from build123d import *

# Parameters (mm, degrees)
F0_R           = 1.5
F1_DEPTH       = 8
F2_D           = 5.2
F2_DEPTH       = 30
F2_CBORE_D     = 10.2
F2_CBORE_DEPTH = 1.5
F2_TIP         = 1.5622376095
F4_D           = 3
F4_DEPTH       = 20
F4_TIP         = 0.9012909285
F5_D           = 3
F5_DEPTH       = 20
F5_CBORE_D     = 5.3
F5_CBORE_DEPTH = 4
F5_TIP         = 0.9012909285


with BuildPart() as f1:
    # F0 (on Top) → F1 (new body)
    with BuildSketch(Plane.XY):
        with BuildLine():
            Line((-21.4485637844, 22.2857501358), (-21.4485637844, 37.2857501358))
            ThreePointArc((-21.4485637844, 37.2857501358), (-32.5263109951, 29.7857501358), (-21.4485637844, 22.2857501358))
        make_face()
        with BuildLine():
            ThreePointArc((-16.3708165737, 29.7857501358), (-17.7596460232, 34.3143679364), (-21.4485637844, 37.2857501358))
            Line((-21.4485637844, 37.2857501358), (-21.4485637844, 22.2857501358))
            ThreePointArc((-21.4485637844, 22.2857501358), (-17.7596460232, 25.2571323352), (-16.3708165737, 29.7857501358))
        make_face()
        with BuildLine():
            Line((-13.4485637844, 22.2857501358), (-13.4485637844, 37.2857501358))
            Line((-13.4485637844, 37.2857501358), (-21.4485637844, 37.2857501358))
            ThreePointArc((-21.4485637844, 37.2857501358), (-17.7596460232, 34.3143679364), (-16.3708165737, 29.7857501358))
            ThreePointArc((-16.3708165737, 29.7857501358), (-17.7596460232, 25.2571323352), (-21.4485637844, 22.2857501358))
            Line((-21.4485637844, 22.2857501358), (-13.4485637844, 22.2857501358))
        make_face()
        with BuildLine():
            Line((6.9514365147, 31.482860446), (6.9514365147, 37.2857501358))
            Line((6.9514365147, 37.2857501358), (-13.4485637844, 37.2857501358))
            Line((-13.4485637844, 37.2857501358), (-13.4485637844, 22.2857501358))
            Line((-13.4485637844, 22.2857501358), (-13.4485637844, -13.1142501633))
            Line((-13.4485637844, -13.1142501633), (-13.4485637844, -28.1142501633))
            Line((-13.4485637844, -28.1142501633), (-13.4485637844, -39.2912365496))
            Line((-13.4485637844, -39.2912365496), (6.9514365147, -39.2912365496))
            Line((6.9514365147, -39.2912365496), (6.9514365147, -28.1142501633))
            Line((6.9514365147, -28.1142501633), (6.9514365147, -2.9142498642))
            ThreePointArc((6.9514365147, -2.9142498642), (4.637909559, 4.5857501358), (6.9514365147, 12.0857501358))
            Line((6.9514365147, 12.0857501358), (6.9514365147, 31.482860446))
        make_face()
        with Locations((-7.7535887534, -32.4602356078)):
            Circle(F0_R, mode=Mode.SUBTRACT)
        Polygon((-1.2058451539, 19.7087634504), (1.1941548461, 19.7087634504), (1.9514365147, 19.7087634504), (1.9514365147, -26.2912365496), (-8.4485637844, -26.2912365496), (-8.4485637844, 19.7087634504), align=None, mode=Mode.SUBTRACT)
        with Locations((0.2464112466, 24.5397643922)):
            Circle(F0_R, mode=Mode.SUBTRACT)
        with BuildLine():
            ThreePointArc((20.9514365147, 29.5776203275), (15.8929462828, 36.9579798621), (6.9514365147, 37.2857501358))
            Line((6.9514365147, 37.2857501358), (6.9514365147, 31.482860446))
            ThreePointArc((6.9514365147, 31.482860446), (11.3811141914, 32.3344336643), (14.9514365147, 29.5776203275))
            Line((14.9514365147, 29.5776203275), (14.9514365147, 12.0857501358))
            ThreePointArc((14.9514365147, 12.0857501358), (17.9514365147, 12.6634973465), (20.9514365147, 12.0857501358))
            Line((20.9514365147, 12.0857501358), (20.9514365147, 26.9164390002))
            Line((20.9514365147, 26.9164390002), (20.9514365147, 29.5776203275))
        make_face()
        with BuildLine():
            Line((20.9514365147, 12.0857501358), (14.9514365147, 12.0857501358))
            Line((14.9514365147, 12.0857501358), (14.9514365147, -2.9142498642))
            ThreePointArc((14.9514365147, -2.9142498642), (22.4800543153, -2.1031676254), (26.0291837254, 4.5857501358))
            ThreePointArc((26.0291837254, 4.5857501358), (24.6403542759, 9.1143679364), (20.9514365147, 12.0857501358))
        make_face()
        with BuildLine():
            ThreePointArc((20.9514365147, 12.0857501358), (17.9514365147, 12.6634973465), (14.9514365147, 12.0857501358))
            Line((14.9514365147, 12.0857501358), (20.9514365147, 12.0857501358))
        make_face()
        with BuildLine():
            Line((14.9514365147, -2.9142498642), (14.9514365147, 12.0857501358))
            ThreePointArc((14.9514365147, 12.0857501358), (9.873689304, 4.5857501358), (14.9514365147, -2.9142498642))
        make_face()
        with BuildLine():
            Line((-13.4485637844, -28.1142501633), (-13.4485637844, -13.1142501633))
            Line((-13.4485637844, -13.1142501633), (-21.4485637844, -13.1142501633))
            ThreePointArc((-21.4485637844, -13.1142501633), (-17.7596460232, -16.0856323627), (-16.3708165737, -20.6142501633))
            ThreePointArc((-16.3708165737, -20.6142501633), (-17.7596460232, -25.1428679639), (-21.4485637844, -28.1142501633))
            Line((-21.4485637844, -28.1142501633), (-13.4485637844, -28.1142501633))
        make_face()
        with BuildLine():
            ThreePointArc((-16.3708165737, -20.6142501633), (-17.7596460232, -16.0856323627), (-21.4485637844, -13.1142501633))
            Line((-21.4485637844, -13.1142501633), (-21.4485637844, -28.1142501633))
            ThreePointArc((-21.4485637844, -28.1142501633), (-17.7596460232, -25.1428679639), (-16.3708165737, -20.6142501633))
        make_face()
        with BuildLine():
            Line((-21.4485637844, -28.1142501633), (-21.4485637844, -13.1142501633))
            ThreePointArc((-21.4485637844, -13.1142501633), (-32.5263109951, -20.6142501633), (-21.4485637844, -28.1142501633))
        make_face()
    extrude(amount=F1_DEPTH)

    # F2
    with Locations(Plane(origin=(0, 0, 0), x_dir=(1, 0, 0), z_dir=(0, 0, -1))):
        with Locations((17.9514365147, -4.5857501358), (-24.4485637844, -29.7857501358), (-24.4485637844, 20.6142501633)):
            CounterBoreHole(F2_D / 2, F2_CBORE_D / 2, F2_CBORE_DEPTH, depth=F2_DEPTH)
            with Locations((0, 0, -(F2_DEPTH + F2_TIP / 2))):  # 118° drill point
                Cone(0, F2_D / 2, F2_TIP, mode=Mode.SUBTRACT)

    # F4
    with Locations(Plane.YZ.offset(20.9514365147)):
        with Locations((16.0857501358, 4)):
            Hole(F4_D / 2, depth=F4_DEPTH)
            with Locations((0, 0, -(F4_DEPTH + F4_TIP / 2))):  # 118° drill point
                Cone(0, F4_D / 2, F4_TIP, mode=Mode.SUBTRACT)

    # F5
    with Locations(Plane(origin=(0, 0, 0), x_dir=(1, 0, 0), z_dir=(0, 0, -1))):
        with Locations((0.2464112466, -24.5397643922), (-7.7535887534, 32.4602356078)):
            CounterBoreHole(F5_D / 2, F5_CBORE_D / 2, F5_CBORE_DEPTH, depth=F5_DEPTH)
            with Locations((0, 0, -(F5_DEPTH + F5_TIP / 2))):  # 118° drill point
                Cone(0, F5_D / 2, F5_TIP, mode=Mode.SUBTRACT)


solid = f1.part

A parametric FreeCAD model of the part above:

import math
import FreeCAD as App
import Part
import Sketcher
Q = App.Units.Quantity

doc = App.newDocument("Part")
body = doc.addObject("PartDesign::Body", "Body")

sketch1 = doc.addObject("Sketcher::SketchObject", "Sketch")
body.addObject(sketch1)
sketch1.AttachmentSupport = (doc.XY_Plane, [""])
sketch1.MapMode = "FlatFace"
sketch1.addGeometry([
    Part.ArcOfCircle(Part.Circle(App.Vector(-24.4, 29.8, 0), App.Vector(0, 0, 1), 8.1), math.radians(68), math.radians(292)),
    Part.LineSegment(App.Vector(-21.4, 22.3, 0), App.Vector(-13.4, 22.3, 0)),
    Part.LineSegment(App.Vector(-13.4, 22.3, 0), App.Vector(-13.4, -13.1, 0)),
    Part.LineSegment(App.Vector(-13.4, -13.1, 0), App.Vector(-21.4, -13.1, 0)),
    Part.ArcOfCircle(Part.Circle(App.Vector(-24.4, -20.6, 0), App.Vector(0, 0, 1), 8.1), math.radians(68), math.radians(292)),
    Part.LineSegment(App.Vector(-21.4, -28.1, 0), App.Vector(-13.4, -28.1, 0)),
    Part.LineSegment(App.Vector(-13.4, -28.1, 0), App.Vector(-13.4, -39.3, 0)),
    Part.LineSegment(App.Vector(-13.4, -39.3, 0), App.Vector(7, -39.3, 0)),
    Part.LineSegment(App.Vector(7, -39.3, 0), App.Vector(7, -2.9, 0)),
    Part.ArcOfCircle(Part.Circle(App.Vector(18, 4.6, 0), App.Vector(0, 0, 1), 13.3), math.radians(146), math.radians(214)),
    Part.LineSegment(App.Vector(7, 12.1, 0), App.Vector(7, 31.5, 0)),
    Part.ArcOfCircle(Part.Circle(App.Vector(10.1, 27, 0), App.Vector(0, 0, 1), 5.5), math.radians(28), math.radians(125)),
    Part.LineSegment(App.Vector(15, 29.6, 0), App.Vector(15, 12.1, 0)),
    Part.ArcOfCircle(Part.Circle(App.Vector(18, 4.6, 0), App.Vector(0, 0, 1), 8.1), math.radians(112), math.radians(428)),
    Part.LineSegment(App.Vector(21, 12.1, 0), App.Vector(21, 29.6, 0)),
    Part.ArcOfCircle(Part.Circle(App.Vector(11.1, 28.2, 0), App.Vector(0, 0, 1), 9.9), math.radians(8), math.radians(115)),
    Part.LineSegment(App.Vector(7, 37.3, 0), App.Vector(-21.4, 37.3, 0)),
    Part.Circle(App.Vector(-7.8, -32.5, 0), App.Vector(0, 0, 1), 1.5),
    Part.LineSegment(App.Vector(-8.4, 19.7, 0), App.Vector(2, 19.7, 0)),
    Part.LineSegment(App.Vector(2, 19.7, 0), App.Vector(2, -26.3, 0)),
    Part.LineSegment(App.Vector(2, -26.3, 0), App.Vector(-8.4, -26.3, 0)),
    Part.LineSegment(App.Vector(-8.4, -26.3, 0), App.Vector(-8.4, 19.7, 0)),
    Part.Circle(App.Vector(0.2, 24.5, 0), App.Vector(0, 0, 1), 1.5),
], False)
sketch1.addConstraint([
    Sketcher.Constraint("Coincident", 0, 2, 1, 1),
    Sketcher.Constraint("Coincident", 1, 2, 2, 1),
    Sketcher.Constraint("Coincident", 2, 2, 3, 1),
    Sketcher.Constraint("Coincident", 3, 2, 4, 1),
    Sketcher.Constraint("Coincident", 4, 2, 5, 1),
    Sketcher.Constraint("Coincident", 5, 2, 6, 1),
    Sketcher.Constraint("Coincident", 6, 2, 7, 1),
    Sketcher.Constraint("Coincident", 7, 2, 8, 1),
    Sketcher.Constraint("Coincident", 8, 2, 9, 2),
    Sketcher.Constraint("Coincident", 9, 1, 10, 1),
    Sketcher.Constraint("Coincident", 10, 2, 11, 2),
    Sketcher.Constraint("Coincident", 11, 1, 12, 1),
    Sketcher.Constraint("Coincident", 12, 2, 13, 1),
    Sketcher.Constraint("Coincident", 13, 2, 14, 1),
    Sketcher.Constraint("Coincident", 14, 2, 15, 1),
    Sketcher.Constraint("Coincident", 15, 2, 16, 1),
    Sketcher.Constraint("Coincident", 16, 2, 0, 1),
    Sketcher.Constraint("Coincident", 18, 2, 19, 1),
    Sketcher.Constraint("Coincident", 19, 2, 20, 1),
    Sketcher.Constraint("Coincident", 20, 2, 21, 1),
    Sketcher.Constraint("Coincident", 21, 2, 18, 1),
    Sketcher.Constraint("Horizontal", 1),
    Sketcher.Constraint("Vertical", 2),
    Sketcher.Constraint("Horizontal", 3),
    Sketcher.Constraint("Horizontal", 5),
    Sketcher.Constraint("Vertical", 6),
    Sketcher.Constraint("Horizontal", 7),
    Sketcher.Constraint("Vertical", 8),
    Sketcher.Constraint("Vertical", 10),
    Sketcher.Constraint("Vertical", 12),
    Sketcher.Constraint("Vertical", 14),
    Sketcher.Constraint("Horizontal", 16),
    Sketcher.Constraint("Horizontal", 18),
    Sketcher.Constraint("Vertical", 19),
    Sketcher.Constraint("Horizontal", 20),
    Sketcher.Constraint("Vertical", 21),
    Sketcher.Constraint("Coincident", 13, 3, 9, 3),
    Sketcher.Constraint("Equal", 0, 4),
    Sketcher.Constraint("Equal", 4, 13),
    Sketcher.Constraint("Equal", 17, 22),
    Sketcher.Constraint("Horizontal", 9, 1, 12, 2),
    Sketcher.Constraint("Horizontal", 12, 2, 13, 2),
    Sketcher.Constraint("Horizontal", 11, 1, 14, 2),
    Sketcher.Constraint("Vertical", 0, 3, 4, 3),
    Sketcher.Constraint("Vertical", 0, 2, 3, 2),
    Sketcher.Constraint("Vertical", 3, 2, 4, 2),
    Sketcher.Constraint("Vertical", 2, 2, 5, 2),
    Sketcher.Constraint("Vertical", 8, 2, 9, 1),
    Sketcher.Constraint("Vertical", 10, 2, 15, 2),
    Sketcher.Constraint("Vertical", 4, 2, 16, 2),
    Sketcher.Constraint("Diameter", 17, Q("3 mm")),
    Sketcher.Constraint("DistanceX", 1, 1, 1, 2, Q("8 mm")),
    Sketcher.Constraint("DistanceY", 19, 2, 19, 1, Q("46 mm")),
    Sketcher.Constraint("DistanceX", 7, 1, 7, 2, Q("20.4 mm")),
    Sketcher.Constraint("DistanceX", 18, 1, 18, 2, Q("10.4 mm")),
    Sketcher.Constraint("DistanceY", 2, 2, 2, 1, Q("35.4 mm")),
    Sketcher.Constraint("DistanceX", 0, 3, 0, 2, Q("3 mm")),
    Sketcher.Constraint("DistanceY", 4, 2, 3, 2, Q("15 mm")),
    Sketcher.Constraint("DistanceX", 8, 2, 9, 3, Q("11 mm")),
    Sketcher.Constraint("DistanceY", 8, 2, 9, 1, Q("15 mm")),
    Sketcher.Constraint("DistanceX", 18, 2, 9, 1, Q("5 mm")),
    Sketcher.Constraint("DistanceY", 7, 2, 19, 2, Q("13 mm")),
    Sketcher.Constraint("DistanceY", 9, 3, 0, 3, Q("25.2 mm")),
    Sketcher.Constraint("Radius", 11, Q("5.485454 mm")),
    Sketcher.Constraint("Radius", 15, Q("9.943996 mm")),
    Sketcher.Constraint("DistanceY", 6, 2, 17, 3, Q("6.831001 mm")),
    Sketcher.Constraint("DistanceY", 18, 2, 22, 3, Q("4.831001 mm")),
    Sketcher.Constraint("DistanceY", 10, 1, 10, 2, Q("19.39711 mm")),
    Sketcher.Constraint("DistanceY", 12, 2, 12, 1, Q("17.49187 mm")),
    Sketcher.Constraint("DistanceY", 6, 2, 6, 1, Q("11.176986 mm")),
    Sketcher.Constraint("DistanceY", -1, 1, 0, 3, Q("29.78575 mm")),
    Sketcher.Constraint("DistanceX", -1, 1, 11, 3, Q("10.110269 mm")),
    Sketcher.Constraint("DistanceX", 17, 3, -1, 1, Q("7.753589 mm")),
    Sketcher.Constraint("DistanceX", -1, 1, 22, 3, Q("0.246411 mm")),
])
pad1 = doc.addObject("PartDesign::Pad", "Pad")
body.addObject(pad1)
pad1.Profile = sketch1
pad1.Length = 8

sketch2 = doc.addObject("Sketcher::SketchObject", "Sketch001")
body.addObject(sketch2)
sketch2.AttachmentSupport = (doc.XY_Plane, [""])
sketch2.MapMode = "FlatFace"
sketch2.addGeometry([
    Part.Circle(App.Vector(18, 4.6, 0), App.Vector(0, 0, 1), 2.6),
    Part.Circle(App.Vector(-24.4, 29.8, 0), App.Vector(0, 0, 1), 2.6),
    Part.Circle(App.Vector(-24.4, -20.6, 0), App.Vector(0, 0, 1), 2.6),
], False)
sketch2.addConstraint([
    Sketcher.Constraint("Equal", 0, 1),
    Sketcher.Constraint("Equal", 1, 2),
    Sketcher.Constraint("Vertical", 1, 3, 2, 3),
    Sketcher.Constraint("Diameter", 0, Q("5.2 mm")),
    Sketcher.Constraint("DistanceX", 1, 3, 0, 3, Q("42.4 mm")),
    Sketcher.Constraint("DistanceY", 0, 3, 1, 3, Q("25.2 mm")),
    Sketcher.Constraint("DistanceY", 2, 3, 0, 3, Q("25.2 mm")),
    Sketcher.Constraint("DistanceY", -1, 1, 0, 3, Q("4.58575 mm")),
    Sketcher.Constraint("DistanceX", -1, 1, 0, 3, Q("17.951437 mm")),
])
doc.recompute()
hole = doc.addObject("PartDesign::Hole", "Hole")
body.addObject(hole)
hole.Profile = sketch2
hole.ThreadType = "None"
hole.Diameter = 5.2
hole.DepthType = "Dimension"
hole.Depth = 30
hole.DrillPoint = "Angled"
hole.DrillPointAngle = 118
hole.HoleCutType = "Counterbore"
hole.HoleCutDiameter = 10.2
hole.HoleCutDepth = 1.5
hole.Reversed = True

sketch3 = doc.addObject("Sketcher::SketchObject", "Sketch002")
body.addObject(sketch3)
sketch3.AttachmentSupport = (doc.YZ_Plane, [""])
sketch3.MapMode = "FlatFace"
sketch3.AttachmentOffset = App.Placement(App.Vector(0, 0, 20.951437), App.Rotation())
sketch3.addGeometry(Part.Circle(App.Vector(16.1, 4, 0), App.Vector(0, 0, 1), 1.5), False)
sketch3.addConstraint([
    Sketcher.Constraint("Diameter", 0, Q("3 mm")),
    Sketcher.Constraint("DistanceY", -1, 1, 0, 3, Q("4 mm")),
    Sketcher.Constraint("DistanceX", -1, 1, 0, 3, Q("16.08575 mm")),
])
doc.recompute()
hole2 = doc.addObject("PartDesign::Hole", "Hole001")
body.addObject(hole2)
hole2.Profile = sketch3
hole2.ThreadType = "None"
hole2.Diameter = 3
hole2.DepthType = "Dimension"
hole2.Depth = 20
hole2.DrillPoint = "Angled"
hole2.DrillPointAngle = 118

sketch4 = doc.addObject("Sketcher::SketchObject", "Sketch003")
body.addObject(sketch4)
sketch4.AttachmentSupport = (doc.XY_Plane, [""])
sketch4.MapMode = "FlatFace"
sketch4.addGeometry([
    Part.Circle(App.Vector(0.2, 24.5, 0), App.Vector(0, 0, 1), 1.5),
    Part.Circle(App.Vector(-7.8, -32.5, 0), App.Vector(0, 0, 1), 1.5),
], False)
sketch4.addConstraint([
    Sketcher.Constraint("Equal", 0, 1),
    Sketcher.Constraint("Diameter", 0, Q("3 mm")),
    Sketcher.Constraint("DistanceX", 1, 3, 0, 3, Q("8 mm")),
    Sketcher.Constraint("DistanceY", 1, 3, 0, 3, Q("57 mm")),
    Sketcher.Constraint("DistanceX", -1, 1, 0, 3, Q("0.246411 mm")),
    Sketcher.Constraint("DistanceY", -1, 1, 0, 3, Q("24.539764 mm")),
])
doc.recompute()
hole3 = doc.addObject("PartDesign::Hole", "Hole002")
body.addObject(hole3)
hole3.Profile = sketch4
hole3.ThreadType = "None"
hole3.Diameter = 3
hole3.DepthType = "Dimension"
hole3.Depth = 20
hole3.DrillPoint = "Angled"
hole3.DrillPointAngle = 118
hole3.HoleCutType = "Counterbore"
hole3.HoleCutDiameter = 5.3
hole3.HoleCutDepth = 4
hole3.Reversed = True

doc.recompute()
